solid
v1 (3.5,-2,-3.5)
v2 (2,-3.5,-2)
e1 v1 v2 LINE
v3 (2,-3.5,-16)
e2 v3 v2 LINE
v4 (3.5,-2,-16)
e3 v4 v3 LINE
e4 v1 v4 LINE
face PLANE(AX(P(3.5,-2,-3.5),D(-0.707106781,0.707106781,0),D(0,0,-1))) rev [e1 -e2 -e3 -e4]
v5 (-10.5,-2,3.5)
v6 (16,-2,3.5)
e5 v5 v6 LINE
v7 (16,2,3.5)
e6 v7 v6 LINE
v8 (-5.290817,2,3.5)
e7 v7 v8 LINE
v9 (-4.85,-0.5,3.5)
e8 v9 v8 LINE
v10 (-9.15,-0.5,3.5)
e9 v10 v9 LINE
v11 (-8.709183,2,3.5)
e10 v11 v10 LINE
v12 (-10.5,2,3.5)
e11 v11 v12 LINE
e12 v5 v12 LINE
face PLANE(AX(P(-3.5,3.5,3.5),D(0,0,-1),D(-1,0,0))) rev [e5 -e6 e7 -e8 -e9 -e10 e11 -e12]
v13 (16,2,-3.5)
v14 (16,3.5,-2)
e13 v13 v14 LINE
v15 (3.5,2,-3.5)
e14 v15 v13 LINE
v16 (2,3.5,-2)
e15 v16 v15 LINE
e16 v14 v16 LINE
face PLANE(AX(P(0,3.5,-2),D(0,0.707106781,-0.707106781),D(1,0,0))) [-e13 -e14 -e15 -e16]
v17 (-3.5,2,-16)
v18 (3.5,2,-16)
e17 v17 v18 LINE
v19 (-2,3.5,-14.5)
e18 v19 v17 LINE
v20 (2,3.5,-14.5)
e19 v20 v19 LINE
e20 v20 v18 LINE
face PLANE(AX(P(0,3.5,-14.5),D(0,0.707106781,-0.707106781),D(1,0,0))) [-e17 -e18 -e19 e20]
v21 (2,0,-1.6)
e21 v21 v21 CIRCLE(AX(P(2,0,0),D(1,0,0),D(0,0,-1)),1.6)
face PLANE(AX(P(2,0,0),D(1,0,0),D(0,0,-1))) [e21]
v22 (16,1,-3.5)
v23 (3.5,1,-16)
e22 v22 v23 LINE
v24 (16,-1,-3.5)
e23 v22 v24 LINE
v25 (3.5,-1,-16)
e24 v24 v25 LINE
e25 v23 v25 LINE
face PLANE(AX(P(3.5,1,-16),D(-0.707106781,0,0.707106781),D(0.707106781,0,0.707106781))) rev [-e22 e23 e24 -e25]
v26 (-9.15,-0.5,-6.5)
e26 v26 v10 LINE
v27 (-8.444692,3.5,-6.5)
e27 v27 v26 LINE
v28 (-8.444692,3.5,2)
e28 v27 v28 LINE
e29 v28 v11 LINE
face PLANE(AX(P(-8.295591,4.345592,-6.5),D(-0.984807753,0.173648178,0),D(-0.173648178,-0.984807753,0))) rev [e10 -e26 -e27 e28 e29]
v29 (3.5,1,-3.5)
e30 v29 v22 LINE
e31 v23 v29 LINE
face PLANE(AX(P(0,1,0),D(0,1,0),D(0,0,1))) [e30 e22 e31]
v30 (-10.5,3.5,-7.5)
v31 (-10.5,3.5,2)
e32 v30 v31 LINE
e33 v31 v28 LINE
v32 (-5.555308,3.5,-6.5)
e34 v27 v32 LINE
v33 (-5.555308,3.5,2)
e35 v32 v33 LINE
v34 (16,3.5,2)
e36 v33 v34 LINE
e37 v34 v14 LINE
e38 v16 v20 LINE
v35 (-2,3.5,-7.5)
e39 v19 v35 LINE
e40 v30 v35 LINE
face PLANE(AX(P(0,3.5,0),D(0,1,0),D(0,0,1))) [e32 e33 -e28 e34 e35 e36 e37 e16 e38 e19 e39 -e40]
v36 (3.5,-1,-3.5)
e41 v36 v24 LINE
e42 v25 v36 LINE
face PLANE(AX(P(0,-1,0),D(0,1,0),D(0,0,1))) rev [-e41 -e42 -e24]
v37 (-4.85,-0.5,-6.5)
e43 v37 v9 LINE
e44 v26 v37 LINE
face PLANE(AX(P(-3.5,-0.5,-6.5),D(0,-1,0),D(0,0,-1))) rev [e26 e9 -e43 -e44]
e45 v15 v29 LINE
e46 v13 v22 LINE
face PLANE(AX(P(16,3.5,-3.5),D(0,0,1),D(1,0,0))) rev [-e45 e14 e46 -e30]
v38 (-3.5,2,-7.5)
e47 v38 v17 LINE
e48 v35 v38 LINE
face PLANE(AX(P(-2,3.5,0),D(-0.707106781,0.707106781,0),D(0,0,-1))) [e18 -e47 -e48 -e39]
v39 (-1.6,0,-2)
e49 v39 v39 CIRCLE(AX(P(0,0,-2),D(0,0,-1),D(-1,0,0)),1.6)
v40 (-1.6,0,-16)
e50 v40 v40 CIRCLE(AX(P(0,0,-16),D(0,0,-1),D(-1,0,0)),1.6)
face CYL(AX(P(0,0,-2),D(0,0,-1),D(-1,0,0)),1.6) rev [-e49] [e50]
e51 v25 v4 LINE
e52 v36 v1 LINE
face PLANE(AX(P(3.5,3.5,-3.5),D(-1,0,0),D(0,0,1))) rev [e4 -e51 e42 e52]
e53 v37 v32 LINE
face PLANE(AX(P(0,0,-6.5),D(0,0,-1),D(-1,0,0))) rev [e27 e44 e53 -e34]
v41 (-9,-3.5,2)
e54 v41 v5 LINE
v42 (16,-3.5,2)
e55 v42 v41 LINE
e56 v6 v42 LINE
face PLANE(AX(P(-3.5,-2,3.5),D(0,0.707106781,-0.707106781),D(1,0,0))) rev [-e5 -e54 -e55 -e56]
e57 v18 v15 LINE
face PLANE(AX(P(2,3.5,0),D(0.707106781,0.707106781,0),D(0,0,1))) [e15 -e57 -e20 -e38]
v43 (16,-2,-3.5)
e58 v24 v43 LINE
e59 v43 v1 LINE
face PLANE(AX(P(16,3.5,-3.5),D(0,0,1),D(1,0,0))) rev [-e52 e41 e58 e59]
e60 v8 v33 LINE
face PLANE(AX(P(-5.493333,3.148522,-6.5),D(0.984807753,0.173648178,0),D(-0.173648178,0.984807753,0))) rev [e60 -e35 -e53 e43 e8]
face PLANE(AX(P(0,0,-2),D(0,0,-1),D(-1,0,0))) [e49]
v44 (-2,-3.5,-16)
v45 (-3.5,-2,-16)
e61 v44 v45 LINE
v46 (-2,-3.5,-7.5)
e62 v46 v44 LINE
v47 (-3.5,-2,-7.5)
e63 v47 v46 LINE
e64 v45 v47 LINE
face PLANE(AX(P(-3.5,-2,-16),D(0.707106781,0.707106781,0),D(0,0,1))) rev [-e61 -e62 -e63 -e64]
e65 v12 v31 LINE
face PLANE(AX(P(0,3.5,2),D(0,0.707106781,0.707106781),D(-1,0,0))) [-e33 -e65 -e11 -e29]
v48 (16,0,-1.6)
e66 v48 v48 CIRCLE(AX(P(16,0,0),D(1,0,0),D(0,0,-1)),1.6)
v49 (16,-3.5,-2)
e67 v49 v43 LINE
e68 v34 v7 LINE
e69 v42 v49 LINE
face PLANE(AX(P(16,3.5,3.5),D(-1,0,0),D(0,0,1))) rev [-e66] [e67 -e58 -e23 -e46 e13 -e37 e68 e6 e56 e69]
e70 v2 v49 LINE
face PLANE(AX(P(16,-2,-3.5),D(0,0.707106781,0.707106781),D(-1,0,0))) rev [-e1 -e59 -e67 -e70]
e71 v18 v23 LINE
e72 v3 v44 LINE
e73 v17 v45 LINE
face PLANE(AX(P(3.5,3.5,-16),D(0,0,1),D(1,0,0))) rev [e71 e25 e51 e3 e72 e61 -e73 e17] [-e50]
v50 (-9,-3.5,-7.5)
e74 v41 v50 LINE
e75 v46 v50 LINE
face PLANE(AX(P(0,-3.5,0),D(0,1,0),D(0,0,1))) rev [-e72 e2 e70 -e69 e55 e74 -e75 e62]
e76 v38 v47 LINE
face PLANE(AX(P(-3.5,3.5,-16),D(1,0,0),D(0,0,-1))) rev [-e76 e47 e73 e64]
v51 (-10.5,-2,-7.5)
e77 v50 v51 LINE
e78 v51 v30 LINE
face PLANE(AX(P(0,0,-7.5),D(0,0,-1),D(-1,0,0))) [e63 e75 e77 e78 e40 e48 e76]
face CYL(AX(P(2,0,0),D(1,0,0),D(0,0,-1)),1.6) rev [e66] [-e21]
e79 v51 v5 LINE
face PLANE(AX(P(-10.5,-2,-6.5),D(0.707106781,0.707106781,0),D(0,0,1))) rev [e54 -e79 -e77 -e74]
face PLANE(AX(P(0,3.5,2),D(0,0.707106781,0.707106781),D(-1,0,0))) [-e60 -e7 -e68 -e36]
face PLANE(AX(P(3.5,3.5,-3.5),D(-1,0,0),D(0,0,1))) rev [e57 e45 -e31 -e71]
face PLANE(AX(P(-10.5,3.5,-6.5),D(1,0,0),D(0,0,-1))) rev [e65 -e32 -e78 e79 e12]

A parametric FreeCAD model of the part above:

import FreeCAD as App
import Part
import Sketcher
from FreeCAD import Vector
Q = App.Units.Quantity


def edges_at(feature, points):
    """Names of the edges that pass closest to the given points."""
    edges = feature.Shape.Edges
    near = lambda p: min(range(len(edges)), key=lambda i: edges[i].distToShape(Part.Vertex(*p))[0])
    return sorted({f"Edge{near(p) + 1}" for p in points})

doc = App.newDocument("Part")
body = doc.addObject("PartDesign::Body", "Body")

# Sketch on XZ plane
sketch1 = doc.addObject("Sketcher::SketchObject", "Sketch")
body.addObject(sketch1)
sketch1.AttachmentSupport = (doc.XZ_Plane, [""])
sketch1.MapMode = "FlatFace"
sketch1.addGeometry(Part.LineSegment(Vector(-4, -16, 0), Vector(-4, 4, 0)), False)
sketch1.addGeometry(Part.LineSegment(Vector(-4, 4, 0), Vector(16, 4, 0)), False)
sketch1.addGeometry(Part.LineSegment(Vector(16, 4, 0), Vector(16, -4, 0)), False)
sketch1.addGeometry(Part.LineSegment(Vector(16, -4, 0), Vector(4, -4, 0)), False)
sketch1.addGeometry(Part.LineSegment(Vector(4, -4, 0), Vector(4, -16, 0)), False)
sketch1.addGeometry(Part.LineSegment(Vector(4, -16, 0), Vector(-4, -16, 0)), False)
sketch1.addConstraint(Sketcher.Constraint("Coincident", 0, 2, 1, 1))
sketch1.addConstraint(Sketcher.Constraint("Coincident", 1, 2, 2, 1))
sketch1.addConstraint(Sketcher.Constraint("Coincident", 2, 2, 3, 1))
sketch1.addConstraint(Sketcher.Constraint("Coincident", 3, 2, 4, 1))
sketch1.addConstraint(Sketcher.Constraint("Coincident", 4, 2, 5, 1))
sketch1.addConstraint(Sketcher.Constraint("Coincident", 5, 2, 0, 1))
sketch1.addConstraint(Sketcher.Constraint("Vertical", 0))
sketch1.addConstraint(Sketcher.Constraint("Horizontal", 1))
sketch1.addConstraint(Sketcher.Constraint("Vertical", 2))
sketch1.addConstraint(Sketcher.Constraint("Horizontal", 3))
sketch1.addConstraint(Sketcher.Constraint("Vertical", 4))
sketch1.addConstraint(Sketcher.Constraint("Horizontal", 5))
sketch1.addConstraint(Sketcher.Constraint("Symmetric", 0, 2, 3, 2, -1, 1))
sketch1.addConstraint(Sketcher.Constraint("Equal", 1, 0))
sketch1.addConstraint(Sketcher.Constraint("Equal", 5, 2))
sketch1.addConstraint(Sketcher.Constraint("DistanceX", 5, 2, 5, 1, 7.0))
sketch1.addConstraint(Sketcher.Constraint("DistanceX", 1, 1, 1, 2, 19.5))
pad1 = doc.addObject("PartDesign::Pad", "Pad")
body.addObject(pad1)
pad1.Profile = sketch1
pad1.Length = 7
pad1.Midplane = True

# Sketch on XY plane
sketch2 = doc.addObject("Sketcher::SketchObject", "Sketch001")
body.addObject(sketch2)
sketch2.AttachmentSupport = (doc.XY_Plane, [""])
sketch2.MapMode = "FlatFace"
sketch2.AttachmentOffset = App.Placement(Vector(0, 0, -16), App.Rotation())
sketch2.addGeometry(Part.Circle(Vector(0, 0, 0), Vector(0, 0, 1), 1.6), False)
sketch2.addConstraint(Sketcher.Constraint("Coincident", 0, 3, -1, 1))
sketch2.addConstraint(Sketcher.Constraint("Diameter", 0, 3.2))
pocket1 = doc.addObject("PartDesign::Pocket", "Pocket")
body.addObject(pocket1)
pocket1.Profile = sketch2
pocket1.Length = 14
pocket1.Reversed = True

# Sketch on YZ plane
sketch3 = doc.addObject("Sketcher::SketchObject", "Sketch002")
body.addObject(sketch3)
sketch3.AttachmentSupport = (doc.YZ_Plane, [""])
sketch3.MapMode = "FlatFace"
sketch3.AttachmentOffset = App.Placement(Vector(0, 0, 16), App.Rotation())
sketch3.addGeometry(Part.Circle(Vector(0, 0, 0), Vector(0, 0, 1), 1.6), False)
sketch3.addConstraint(Sketcher.Constraint("Coincident", 0, 3, -1, 1))
sketch3.addConstraint(Sketcher.Constraint("Diameter", 0, 3.2))
pocket2 = doc.addObject("PartDesign::Pocket", "Pocket001")
body.addObject(pocket2)
pocket2.Profile = sketch3
pocket2.Length = 14

# Sketch on XZ plane
sketch4 = doc.addObject("Sketcher::SketchObject", "Sketch003")
body.addObject(sketch4)
sketch4.AttachmentSupport = (doc.XZ_Plane, [""])
sketch4.MapMode = "FlatFace"
sketch4.addGeometry(Part.LineSegment(Vector(16, -4, 0), Vector(4, -16, 0)), False)
sketch4.addGeometry(Part.LineSegment(Vector(4, -16, 0), Vector(4, -4, 0)), False)
sketch4.addGeometry(Part.LineSegment(Vector(4, -4, 0), Vector(16, -4, 0)), False)
sketch4.addConstraint(Sketcher.Constraint("Coincident", 0, 2, 1, 1))
sketch4.addConstraint(Sketcher.Constraint("Coincident", 1, 2, 2, 1))
sketch4.addConstraint(Sketcher.Constraint("Coincident", 2, 2, 0, 1))
sketch4.addConstraint(Sketcher.Constraint("Vertical", 1))
sketch4.addConstraint(Sketcher.Constraint("Horizontal", 2))
sketch4.addConstraint(Sketcher.Constraint("Equal", 2, 1))
sketch4.addConstraint(Sketcher.Constraint("DistanceX", 2, 1, 2, 2, 12.5))
sketch4.addConstraint(Sketcher.Constraint("DistanceY", 0, 2, -1, 1, 16.0))
sketch4.addConstraint(Sketcher.Constraint("DistanceX", -1, 1, 2, 2, 16.0))
pad2 = doc.addObject("PartDesign::Pad", "Pad001")
body.addObject(pad2)
pad2.Profile = sketch4
pad2.Length = 2
pad2.Midplane = True

# Sketch on XY plane
sketch5 = doc.addObject("Sketcher::SketchObject", "Sketch004")
body.addObject(sketch5)
sketch5.AttachmentSupport = (doc.XY_Plane, [""])
sketch5.MapMode = "FlatFace"
sketch5.AttachmentOffset = App.Placement(Vector(0, 0, 3.5), App.Rotation())
sketch5.addGeometry(Part.LineSegment(Vector(-3.5, 3.5, 0), Vector(-3.5, -3.5, 0)), False)
sketch5.addGeometry(Part.LineSegment(Vector(-3.5, -3.5, 0), Vector(-10.5, -3.5, 0)), False)
sketch5.addGeometry(Part.LineSegment(Vector(-10.5, -3.5, 0), Vector(-10.5, 3.5, 0)), False)
sketch5.addGeometry(Part.LineSegment(Vector(-10.5, 3.5, 0), Vector(-8.4, 3.5, 0)), False)
sketch5.addGeometry(Part.LineSegment(Vector(-8.4, 3.5, 0), Vector(-9.2, -0.5, 0)), False)
sketch5.addGeometry(Part.LineSegment(Vector(-9.2, -0.5, 0), Vector(-4.8, -0.5, 0)), False)
sketch5.addGeometry(Part.LineSegment(Vector(-4.8, -0.5, 0), Vector(-5.6, 3.5, 0)), False)
sketch5.addGeometry(Part.LineSegment(Vector(-5.6, 3.5, 0), Vector(-3.5, 3.5, 0)), False)
sketch5.addConstraint(Sketcher.Constraint("Coincident", 0, 2, 1, 1))
sketch5.addConstraint(Sketcher.Constraint("Coincident", 1, 2, 2, 1))
sketch5.addConstraint(Sketcher.Constraint("Coincident", 2, 2, 3, 1))
sketch5.addConstraint(Sketcher.Constraint("Coincident", 3, 2, 4, 1))
sketch5.addConstraint(Sketcher.Constraint("Coincident", 4, 2, 5, 1))
sketch5.addConstraint(Sketcher.Constraint("Coincident", 5, 2, 6, 1))
sketch5.addConstraint(Sketcher.Constraint("Coincident", 6, 2, 7, 1))
sketch5.addConstraint(Sketcher.Constraint("Coincident", 7, 2, 0, 1))
sketch5.addConstraint(Sketcher.Constraint("Vertical", 0))
sketch5.addConstraint(Sketcher.Constraint("Horizontal", 1))
sketch5.addConstraint(Sketcher.Constraint("Vertical", 2))
sketch5.addConstraint(Sketcher.Constraint("Horizontal", 3))
sketch5.addConstraint(Sketcher.Constraint("Horizontal", 5))
sketch5.addConstraint(Sketcher.Constraint("Horizontal", 7))
sketch5.addConstraint(Sketcher.Constraint("Horizontal", 3, 2, 6, 2))
sketch5.addConstraint(Sketcher.Constraint("Equal", 3, 7))
sketch5.addConstraint(Sketcher.Constraint("Equal", 1, 0))
sketch5.addConstraint(Sketcher.Constraint("Equal", 4, 6))
sketch5.addConstraint(Sketcher.Constraint("DistanceX", 1, 2, 1, 1, 7.0))
sketch5.addConstraint(Sketcher.Constraint("Angle", 4, Q("-100 deg")))
sketch5.addConstraint(Sketcher.Constraint("DistanceX", 5, 1, 5, 2, 4.3))
sketch5.addConstraint(Sketcher.Constraint("DistanceY", 1, 2, 4, 2, 3.0))
sketch5.addConstraint(Sketcher.Constraint("DistanceX", 0, 2, -1, 1, 3.5))
sketch5.addConstraint(Sketcher.Constraint("DistanceY", 0, 2, -1, 1, 3.5))
pad3 = doc.addObject("PartDesign::Pad", "Pad002")
body.addObject(pad3)
pad3.Profile = sketch5
pad3.Length = 10
pad3.Reversed = True

# Sketch on XY plane
sketch6 = doc.addObject("Sketcher::SketchObject", "Sketch005")
body.addObject(sketch6)
sketch6.AttachmentSupport = (doc.XY_Plane, [""])
sketch6.MapMode = "FlatFace"
sketch6.AttachmentOffset = App.Placement(Vector(0, 0, -6.5), App.Rotation())
sketch6.addGeometry(Part.LineSegment(Vector(-4, 4, 0), Vector(-4, -4, 0)), False)
sketch6.addGeometry(Part.LineSegment(Vector(-4, -4, 0), Vector(-10, -4, 0)), False)
sketch6.addGeometry(Part.LineSegment(Vector(-10, -4, 0), Vector(-10, 4, 0)), False)
sketch6.addGeometry(Part.LineSegment(Vector(-10, 4, 0), Vector(-4, 4, 0)), False)
sketch6.addConstraint(Sketcher.Constraint("Coincident", 0, 2, 1, 1))
sketch6.addConstraint(Sketcher.Constraint("Coincident", 1, 2, 2, 1))
sketch6.addConstraint(Sketcher.Constraint("Coincident", 2, 2, 3, 1))
sketch6.addConstraint(Sketcher.Constraint("Coincident", 3, 2, 0, 1))
sketch6.addConstraint(Sketcher.Constraint("Vertical", 0))
sketch6.addConstraint(Sketcher.Constraint("Horizontal", 1))
sketch6.addConstraint(Sketcher.Constraint("Vertical", 2))
sketch6.addConstraint(Sketcher.Constraint("Horizontal", 3))
sketch6.addConstraint(Sketcher.Constraint("Equal", 3, 0))
sketch6.addConstraint(Sketcher.Constraint("DistanceX", 1, 2, 1, 1, 7.0))
sketch6.addConstraint(Sketcher.Constraint("DistanceX", 0, 2, -1, 1, 3.5))
sketch6.addConstraint(Sketcher.Constraint("DistanceY", 0, 2, -1, 1, 3.5))
pad4 = doc.addObject("PartDesign::Pad", "Pad003")
body.addObject(pad4)
pad4.Profile = sketch6
pad4.Length = 1
pad4.Reversed = True
doc.recompute()

chamfer = doc.addObject("PartDesign::Chamfer", "Chamfer")
body.addObject(chamfer)
chamfer.Base = (pad4, edges_at(pad4, [
    (5.222, 3.5, 3.5),
    (9.75, 3.5, -3.5),
    (3.5, 3.5, -9.75),
    (-10.5, -3.5, -2),
    (-9.472, 3.5, 3.5),
    (0, 3.5, -16),
    (3.5, -3.5, -9.75),
    (9.75, -3.5, -3.5),
    (2.75, -3.5, 3.5),
    (-3.5, -3.5, -11.75),
    (-3.5, 3.5, -11.75),
]))
chamfer.Size = 1.5

doc.recompute()
